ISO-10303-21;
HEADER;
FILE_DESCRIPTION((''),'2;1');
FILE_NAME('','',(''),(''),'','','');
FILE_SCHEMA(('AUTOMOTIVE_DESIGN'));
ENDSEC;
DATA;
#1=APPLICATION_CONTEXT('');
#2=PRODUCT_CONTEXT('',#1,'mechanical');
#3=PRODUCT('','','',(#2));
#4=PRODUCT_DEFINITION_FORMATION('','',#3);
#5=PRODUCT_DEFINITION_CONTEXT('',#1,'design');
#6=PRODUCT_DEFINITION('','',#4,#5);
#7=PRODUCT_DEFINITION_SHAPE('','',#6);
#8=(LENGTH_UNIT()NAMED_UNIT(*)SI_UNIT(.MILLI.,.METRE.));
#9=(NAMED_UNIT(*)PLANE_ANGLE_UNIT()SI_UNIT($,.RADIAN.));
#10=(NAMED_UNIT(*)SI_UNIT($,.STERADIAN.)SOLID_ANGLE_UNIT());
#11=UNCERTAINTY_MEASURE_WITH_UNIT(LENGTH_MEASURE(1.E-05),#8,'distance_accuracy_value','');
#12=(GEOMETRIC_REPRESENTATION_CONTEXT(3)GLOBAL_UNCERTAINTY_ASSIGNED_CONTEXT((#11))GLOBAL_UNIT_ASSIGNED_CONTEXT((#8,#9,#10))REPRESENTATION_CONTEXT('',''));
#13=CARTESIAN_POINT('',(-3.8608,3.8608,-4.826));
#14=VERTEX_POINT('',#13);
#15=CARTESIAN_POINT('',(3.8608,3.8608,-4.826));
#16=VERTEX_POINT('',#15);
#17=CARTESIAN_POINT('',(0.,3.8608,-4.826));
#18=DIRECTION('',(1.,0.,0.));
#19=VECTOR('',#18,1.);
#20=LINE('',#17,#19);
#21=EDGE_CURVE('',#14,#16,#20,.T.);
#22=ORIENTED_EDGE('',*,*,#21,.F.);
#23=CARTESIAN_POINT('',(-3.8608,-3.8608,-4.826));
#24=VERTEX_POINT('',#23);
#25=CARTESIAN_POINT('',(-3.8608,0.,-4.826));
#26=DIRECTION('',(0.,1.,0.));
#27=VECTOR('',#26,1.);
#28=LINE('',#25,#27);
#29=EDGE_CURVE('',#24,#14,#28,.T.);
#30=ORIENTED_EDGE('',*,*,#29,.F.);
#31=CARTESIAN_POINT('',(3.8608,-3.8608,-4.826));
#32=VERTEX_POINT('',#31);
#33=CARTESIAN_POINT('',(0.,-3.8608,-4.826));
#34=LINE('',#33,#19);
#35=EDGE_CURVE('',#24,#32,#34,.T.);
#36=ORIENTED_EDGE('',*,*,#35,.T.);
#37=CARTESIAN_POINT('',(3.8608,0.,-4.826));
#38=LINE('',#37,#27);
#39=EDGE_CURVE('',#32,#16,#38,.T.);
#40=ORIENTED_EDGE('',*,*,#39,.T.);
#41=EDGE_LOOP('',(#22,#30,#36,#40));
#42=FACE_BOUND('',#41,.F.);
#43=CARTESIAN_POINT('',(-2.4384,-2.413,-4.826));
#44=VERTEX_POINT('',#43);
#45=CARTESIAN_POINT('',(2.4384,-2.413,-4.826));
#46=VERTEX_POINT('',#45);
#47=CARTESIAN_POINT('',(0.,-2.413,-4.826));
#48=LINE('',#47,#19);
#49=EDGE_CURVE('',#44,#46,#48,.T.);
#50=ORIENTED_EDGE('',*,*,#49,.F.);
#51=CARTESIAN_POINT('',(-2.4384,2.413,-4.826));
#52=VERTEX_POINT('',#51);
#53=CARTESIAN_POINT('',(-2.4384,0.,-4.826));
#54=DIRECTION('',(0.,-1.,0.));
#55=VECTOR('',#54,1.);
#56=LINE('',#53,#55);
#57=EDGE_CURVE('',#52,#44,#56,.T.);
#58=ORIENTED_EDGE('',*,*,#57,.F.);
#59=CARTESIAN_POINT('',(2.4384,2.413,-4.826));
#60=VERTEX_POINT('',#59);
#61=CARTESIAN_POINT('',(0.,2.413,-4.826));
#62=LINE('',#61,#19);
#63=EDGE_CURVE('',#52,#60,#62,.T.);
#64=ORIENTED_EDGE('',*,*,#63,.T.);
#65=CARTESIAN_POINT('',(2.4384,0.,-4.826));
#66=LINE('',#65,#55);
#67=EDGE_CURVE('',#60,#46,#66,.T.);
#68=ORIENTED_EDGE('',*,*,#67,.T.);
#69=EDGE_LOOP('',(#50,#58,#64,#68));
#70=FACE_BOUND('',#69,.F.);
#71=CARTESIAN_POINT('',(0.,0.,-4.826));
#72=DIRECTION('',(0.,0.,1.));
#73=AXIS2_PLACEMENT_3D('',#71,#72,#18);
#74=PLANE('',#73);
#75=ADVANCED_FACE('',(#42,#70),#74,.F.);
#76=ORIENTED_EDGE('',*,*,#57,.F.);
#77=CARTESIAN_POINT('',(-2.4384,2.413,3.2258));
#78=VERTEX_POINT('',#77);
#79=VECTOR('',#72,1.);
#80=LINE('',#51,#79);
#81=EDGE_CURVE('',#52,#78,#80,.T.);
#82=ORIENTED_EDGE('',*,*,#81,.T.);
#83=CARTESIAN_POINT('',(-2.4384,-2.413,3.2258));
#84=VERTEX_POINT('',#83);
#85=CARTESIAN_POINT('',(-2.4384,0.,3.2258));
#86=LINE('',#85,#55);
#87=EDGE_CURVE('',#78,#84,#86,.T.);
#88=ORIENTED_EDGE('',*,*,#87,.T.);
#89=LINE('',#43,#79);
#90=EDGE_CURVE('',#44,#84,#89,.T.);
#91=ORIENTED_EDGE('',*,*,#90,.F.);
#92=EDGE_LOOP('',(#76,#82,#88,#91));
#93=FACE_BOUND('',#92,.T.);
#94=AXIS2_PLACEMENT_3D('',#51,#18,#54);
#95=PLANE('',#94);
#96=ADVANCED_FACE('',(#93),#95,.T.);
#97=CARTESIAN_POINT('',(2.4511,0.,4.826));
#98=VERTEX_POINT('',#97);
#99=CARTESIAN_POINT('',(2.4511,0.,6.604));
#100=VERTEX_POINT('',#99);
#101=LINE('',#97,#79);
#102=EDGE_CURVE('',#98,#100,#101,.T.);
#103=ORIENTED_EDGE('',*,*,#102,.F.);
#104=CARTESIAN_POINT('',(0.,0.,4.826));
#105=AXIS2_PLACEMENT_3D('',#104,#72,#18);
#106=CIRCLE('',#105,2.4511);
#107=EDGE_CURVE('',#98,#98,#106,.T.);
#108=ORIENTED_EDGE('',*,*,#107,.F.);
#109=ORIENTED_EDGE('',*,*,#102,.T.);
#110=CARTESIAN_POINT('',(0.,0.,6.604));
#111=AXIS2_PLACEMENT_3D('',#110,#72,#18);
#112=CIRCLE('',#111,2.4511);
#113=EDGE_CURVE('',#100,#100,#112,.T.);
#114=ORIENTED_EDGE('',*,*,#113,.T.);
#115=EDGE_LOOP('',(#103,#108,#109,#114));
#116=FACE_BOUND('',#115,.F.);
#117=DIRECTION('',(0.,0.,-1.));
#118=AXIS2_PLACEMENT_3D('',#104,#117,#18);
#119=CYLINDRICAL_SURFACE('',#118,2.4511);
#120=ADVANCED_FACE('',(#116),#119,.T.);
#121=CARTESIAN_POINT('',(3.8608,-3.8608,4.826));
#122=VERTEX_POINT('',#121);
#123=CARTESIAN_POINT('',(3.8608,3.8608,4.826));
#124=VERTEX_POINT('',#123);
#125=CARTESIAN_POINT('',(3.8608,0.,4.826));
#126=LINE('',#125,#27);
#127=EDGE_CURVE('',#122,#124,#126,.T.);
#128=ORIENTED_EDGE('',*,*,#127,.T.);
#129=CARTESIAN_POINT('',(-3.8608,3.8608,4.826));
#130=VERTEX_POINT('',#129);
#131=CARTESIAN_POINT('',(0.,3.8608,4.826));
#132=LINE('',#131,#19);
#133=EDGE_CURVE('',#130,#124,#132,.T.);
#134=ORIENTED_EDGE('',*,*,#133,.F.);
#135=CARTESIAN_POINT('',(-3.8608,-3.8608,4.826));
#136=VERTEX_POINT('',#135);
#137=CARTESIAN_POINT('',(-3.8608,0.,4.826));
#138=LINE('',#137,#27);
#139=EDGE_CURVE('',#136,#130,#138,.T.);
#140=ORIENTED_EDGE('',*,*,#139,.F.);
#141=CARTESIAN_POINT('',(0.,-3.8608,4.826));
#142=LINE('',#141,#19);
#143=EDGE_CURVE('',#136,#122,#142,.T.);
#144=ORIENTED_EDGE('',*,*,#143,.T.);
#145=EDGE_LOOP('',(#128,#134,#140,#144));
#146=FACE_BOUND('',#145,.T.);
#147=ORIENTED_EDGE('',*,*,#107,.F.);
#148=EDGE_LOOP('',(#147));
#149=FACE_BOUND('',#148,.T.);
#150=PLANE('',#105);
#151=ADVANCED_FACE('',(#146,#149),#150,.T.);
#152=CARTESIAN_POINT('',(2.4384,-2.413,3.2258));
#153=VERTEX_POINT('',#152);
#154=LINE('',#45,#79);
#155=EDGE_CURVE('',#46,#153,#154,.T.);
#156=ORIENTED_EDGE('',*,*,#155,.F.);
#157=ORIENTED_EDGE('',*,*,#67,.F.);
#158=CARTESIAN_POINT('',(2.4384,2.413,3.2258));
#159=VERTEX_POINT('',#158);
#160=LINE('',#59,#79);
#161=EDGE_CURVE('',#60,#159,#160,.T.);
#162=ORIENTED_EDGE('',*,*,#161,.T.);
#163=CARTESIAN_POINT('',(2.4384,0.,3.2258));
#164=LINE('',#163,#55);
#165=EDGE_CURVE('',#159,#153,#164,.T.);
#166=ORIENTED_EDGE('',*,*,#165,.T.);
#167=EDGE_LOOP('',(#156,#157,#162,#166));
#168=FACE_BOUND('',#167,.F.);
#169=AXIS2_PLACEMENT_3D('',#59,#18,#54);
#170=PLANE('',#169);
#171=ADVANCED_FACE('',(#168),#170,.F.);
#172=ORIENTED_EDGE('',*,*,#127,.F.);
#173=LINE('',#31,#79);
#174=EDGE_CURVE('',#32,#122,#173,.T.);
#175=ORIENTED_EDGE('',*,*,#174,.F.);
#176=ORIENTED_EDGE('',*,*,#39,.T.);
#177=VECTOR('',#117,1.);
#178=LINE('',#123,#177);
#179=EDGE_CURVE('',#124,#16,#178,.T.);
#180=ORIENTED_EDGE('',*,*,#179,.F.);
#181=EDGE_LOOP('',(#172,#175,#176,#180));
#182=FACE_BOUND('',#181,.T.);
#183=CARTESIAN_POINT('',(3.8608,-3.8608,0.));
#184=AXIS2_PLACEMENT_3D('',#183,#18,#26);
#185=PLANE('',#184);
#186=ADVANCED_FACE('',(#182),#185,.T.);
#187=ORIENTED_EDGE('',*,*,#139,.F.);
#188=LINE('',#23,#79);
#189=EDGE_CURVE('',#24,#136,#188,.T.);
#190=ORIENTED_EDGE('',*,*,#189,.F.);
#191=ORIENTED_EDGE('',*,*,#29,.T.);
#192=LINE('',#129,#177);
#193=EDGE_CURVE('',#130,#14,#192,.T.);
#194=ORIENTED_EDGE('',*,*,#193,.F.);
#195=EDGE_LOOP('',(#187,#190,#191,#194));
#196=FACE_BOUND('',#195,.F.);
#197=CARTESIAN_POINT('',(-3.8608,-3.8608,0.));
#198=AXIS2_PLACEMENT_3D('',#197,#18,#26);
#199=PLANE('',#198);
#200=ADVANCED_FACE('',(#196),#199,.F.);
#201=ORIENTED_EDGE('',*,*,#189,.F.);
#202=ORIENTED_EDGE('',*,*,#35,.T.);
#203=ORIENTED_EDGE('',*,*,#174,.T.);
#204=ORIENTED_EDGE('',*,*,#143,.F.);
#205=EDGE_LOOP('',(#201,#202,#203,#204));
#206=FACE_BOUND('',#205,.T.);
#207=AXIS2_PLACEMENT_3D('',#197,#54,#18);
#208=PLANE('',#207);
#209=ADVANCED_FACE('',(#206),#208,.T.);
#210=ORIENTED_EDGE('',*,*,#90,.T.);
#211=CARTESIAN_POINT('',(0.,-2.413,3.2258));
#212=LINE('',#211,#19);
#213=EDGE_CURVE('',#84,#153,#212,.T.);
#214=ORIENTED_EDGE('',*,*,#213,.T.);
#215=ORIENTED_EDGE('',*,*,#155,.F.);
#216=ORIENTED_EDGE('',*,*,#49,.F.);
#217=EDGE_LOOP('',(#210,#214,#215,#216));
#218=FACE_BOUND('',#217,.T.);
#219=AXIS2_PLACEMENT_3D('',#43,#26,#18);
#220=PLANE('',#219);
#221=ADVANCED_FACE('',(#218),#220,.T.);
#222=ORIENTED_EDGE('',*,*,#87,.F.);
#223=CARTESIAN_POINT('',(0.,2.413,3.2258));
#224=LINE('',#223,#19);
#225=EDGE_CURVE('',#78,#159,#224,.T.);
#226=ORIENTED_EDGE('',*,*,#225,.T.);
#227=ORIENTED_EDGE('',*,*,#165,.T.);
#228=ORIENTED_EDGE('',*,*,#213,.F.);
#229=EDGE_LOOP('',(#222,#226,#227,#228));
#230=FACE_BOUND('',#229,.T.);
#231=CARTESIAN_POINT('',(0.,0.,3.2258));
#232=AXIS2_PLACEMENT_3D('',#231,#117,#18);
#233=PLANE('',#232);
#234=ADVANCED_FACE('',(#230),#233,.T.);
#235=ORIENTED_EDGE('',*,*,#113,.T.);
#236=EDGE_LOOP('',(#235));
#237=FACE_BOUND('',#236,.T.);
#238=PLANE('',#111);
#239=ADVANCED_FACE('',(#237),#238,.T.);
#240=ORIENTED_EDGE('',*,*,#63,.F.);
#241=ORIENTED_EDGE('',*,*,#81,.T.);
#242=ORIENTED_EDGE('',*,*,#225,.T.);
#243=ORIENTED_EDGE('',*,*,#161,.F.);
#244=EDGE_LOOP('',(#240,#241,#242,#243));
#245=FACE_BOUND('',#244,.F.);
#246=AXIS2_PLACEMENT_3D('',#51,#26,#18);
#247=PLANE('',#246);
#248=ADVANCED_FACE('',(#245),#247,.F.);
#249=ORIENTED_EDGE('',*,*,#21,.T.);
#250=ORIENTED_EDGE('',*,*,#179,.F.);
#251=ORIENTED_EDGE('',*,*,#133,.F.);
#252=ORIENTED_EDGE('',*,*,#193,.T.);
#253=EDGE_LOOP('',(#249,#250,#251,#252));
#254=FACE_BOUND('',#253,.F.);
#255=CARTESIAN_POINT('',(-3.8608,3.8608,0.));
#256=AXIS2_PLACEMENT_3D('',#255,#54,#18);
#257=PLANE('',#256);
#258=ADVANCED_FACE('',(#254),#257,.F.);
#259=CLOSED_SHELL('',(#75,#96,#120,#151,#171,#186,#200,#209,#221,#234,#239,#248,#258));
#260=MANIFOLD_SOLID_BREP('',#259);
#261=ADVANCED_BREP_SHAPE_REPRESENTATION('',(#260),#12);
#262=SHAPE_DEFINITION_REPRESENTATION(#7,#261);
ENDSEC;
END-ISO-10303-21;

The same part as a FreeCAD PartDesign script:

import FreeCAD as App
import Part
import Sketcher

V = App.Vector
Q = App.Units.Quantity


def add_polygon(sketch, points):
    """Adds a closed chain of lines whose ends are joined by coincident constraints."""
    first, n = sketch.GeometryCount, len(points)
    for a, b in zip(points, points[1:] + points[:1]):
        sketch.addGeometry(Part.LineSegment(App.Vector(*a, 0), App.Vector(*b, 0)), False)
    for i in range(n):
        sketch.addConstraint(Sketcher.Constraint("Coincident", first + i, 2, first + (i + 1) % n, 1))

doc = App.newDocument("Part")
body = doc.addObject("PartDesign::Body", "Body")

# Sketch on XY plane
sketch1 = body.newObject("Sketcher::SketchObject", "Sketch")
sketch1.AttachmentSupport = (doc.getObject("XY_Plane"), [""])
sketch1.MapMode = "FlatFace"
add_polygon(sketch1, [(-4, 4), (-4, -4), (4, -4), (4, 4)])  # lines 0-3
sketch1.addConstraint([
    Sketcher.Constraint("Vertical", 0),
    Sketcher.Constraint("Horizontal", 1),
    Sketcher.Constraint("Vertical", 2),
    Sketcher.Constraint("Horizontal", 3),
    Sketcher.Constraint("Symmetric", 0, 2, 2, 2, -1, 1),
    Sketcher.Constraint("Equal", 3, 0),
    Sketcher.Constraint("DistanceX", 1, 1, 1, 2, Q("0.304 in")),
])
pad1 = body.newObject("PartDesign::Pad", "Pad")
pad1.Profile = sketch1
pad1.Length = Q("0.38 in")
pad1.Midplane = True

# Sketch on XY plane
sketch2 = body.newObject("Sketcher::SketchObject", "Sketch001")
sketch2.AttachmentSupport = (doc.getObject("XY_Plane"), [""])
sketch2.MapMode = "FlatFace"
sketch2.AttachmentOffset = App.Placement(V(0, 0, 0.19 * 25.4), App.Rotation())
sketch2.addGeometry(Part.Circle(V(0, 0, 0), V(0, 0, 1), 2.5), False)
sketch2.addConstraint([
    Sketcher.Constraint("Coincident", 0, 3, -1, 1),
    Sketcher.Constraint("Diameter", 0, Q("0.193 in")),
])
pad2 = body.newObject("PartDesign::Pad", "Pad001")
pad2.Profile = sketch2
pad2.Length = Q("0.07 in")

# Sketch on XY plane
sketch3 = body.newObject("Sketcher::SketchObject", "Sketch002")
sketch3.AttachmentSupport = (doc.getObject("XY_Plane"), [""])
sketch3.MapMode = "FlatFace"
sketch3.AttachmentOffset = App.Placement(V(0, 0, -0.19 * 25.4), App.Rotation())
add_polygon(sketch3, [(-2.4, -2.4), (-2.4, 2.4), (2.4, 2.4), (2.4, -2.4)])  # lines 0-3
sketch3.addConstraint([
    Sketcher.Constraint("Vertical", 0),
    Sketcher.Constraint("Horizontal", 1),
    Sketcher.Constraint("Vertical", 2),
    Sketcher.Constraint("Horizontal", 3),
    Sketcher.Constraint("Symmetric", 0, 2, 2, 2, -1, 1),
    Sketcher.Constraint("DistanceY", 0, 1, 0, 2, Q("0.19 in")),
    Sketcher.Constraint("DistanceX", 1, 1, 1, 2, Q("0.192 in")),
])
pocket1 = body.newObject("PartDesign::Pocket", "Pocket")
pocket1.Profile = sketch3
pocket1.Length = Q("0.317 in")
pocket1.Reversed = True

doc.recompute()
